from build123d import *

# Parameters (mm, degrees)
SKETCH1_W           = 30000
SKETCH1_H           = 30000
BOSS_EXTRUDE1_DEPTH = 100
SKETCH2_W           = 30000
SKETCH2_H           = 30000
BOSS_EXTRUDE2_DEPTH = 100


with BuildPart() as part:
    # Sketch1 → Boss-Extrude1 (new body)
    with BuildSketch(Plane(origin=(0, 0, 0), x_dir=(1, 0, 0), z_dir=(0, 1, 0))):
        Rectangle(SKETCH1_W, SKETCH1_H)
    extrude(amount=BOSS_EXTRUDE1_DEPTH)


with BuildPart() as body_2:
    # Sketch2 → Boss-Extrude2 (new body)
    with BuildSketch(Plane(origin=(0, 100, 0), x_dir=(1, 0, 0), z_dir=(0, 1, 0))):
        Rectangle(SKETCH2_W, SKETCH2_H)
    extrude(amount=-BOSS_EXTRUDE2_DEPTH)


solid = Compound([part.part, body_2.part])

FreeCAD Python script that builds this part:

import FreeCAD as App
import Part
import Sketcher

doc = App.newDocument("Part")
params = doc.addObject("Spreadsheet::Sheet", "Params")
for row, (alias, value) in enumerate([
    ("sketch1_width", "30000 mm"),
    ("pad1_length", "100 mm"),
    ("sketch2_width", "30000 mm"),
    ("pad2_length", "100 mm"),
], start=1):
    params.set(f"A{row}", alias)
    params.set(f"B{row}", "=" + value)
    params.setAlias(f"B{row}", alias)

body = doc.addObject("PartDesign::Body", "Body")

# Sketch on XZ plane
sketch1 = body.newObject("Sketcher::SketchObject", "Sketch")
sketch1.AttachmentSupport = (doc.getObject("XZ_Plane"), [""])
sketch1.MapMode = "FlatFace"
sketch1.addGeometry([
    Part.LineSegment(App.Vector(-15000, -15000, 0), App.Vector(-15000, 15000, 0)),
    Part.LineSegment(App.Vector(-15000, 15000, 0), App.Vector(15000, 15000, 0)),
    Part.LineSegment(App.Vector(15000, 15000, 0), App.Vector(15000, -15000, 0)),
    Part.LineSegment(App.Vector(15000, -15000, 0), App.Vector(-15000, -15000, 0)),
], False)
sketch1.addConstraint([
    Sketcher.Constraint("Coincident", 0, 2, 1, 1),
    Sketcher.Constraint("Coincident", 1, 2, 2, 1),
    Sketcher.Constraint("Coincident", 2, 2, 3, 1),
    Sketcher.Constraint("Coincident", 3, 2, 0, 1),
    Sketcher.Constraint("Vertical", 0),
    Sketcher.Constraint("Horizontal", 1),
    Sketcher.Constraint("Vertical", 2),
    Sketcher.Constraint("Horizontal", 3),
    Sketcher.Constraint("Symmetric", 0, 2, 2, 2, -1, 1),
    Sketcher.Constraint("Equal", 3, 0),
    Sketcher.Constraint("DistanceX", 1, 1, 1, 2, 30000.0),
])
sketch1.setExpression("Constraints[10]", "Params.sketch1_width")
pad1 = body.newObject("PartDesign::Pad", "Pad")
pad1.Profile = sketch1
pad1.setExpression("Length", "Params.pad1_length")
pad1.Reversed = True
body2 = doc.addObject("PartDesign::Body", "Body001")

# Sketch on XZ plane
sketch2 = body2.newObject("Sketcher::SketchObject", "Sketch001")
sketch2.AttachmentSupport = (doc.getObject("XZ_Plane001"), [""])
sketch2.MapMode = "FlatFace"
sketch2.AttachmentOffset = App.Placement(App.Vector(0, 0, -100), App.Rotation())
sketch2.addGeometry([
    Part.LineSegment(App.Vector(-15000, -15000, 0), App.Vector(-15000, 15000, 0)),
    Part.LineSegment(App.Vector(-15000, 15000, 0), App.Vector(15000, 15000, 0)),
    Part.LineSegment(App.Vector(15000, 15000, 0), App.Vector(15000, -15000, 0)),
    Part.LineSegment(App.Vector(15000, -15000, 0), App.Vector(-15000, -15000, 0)),
], False)
sketch2.addConstraint([
    Sketcher.Constraint("Coincident", 0, 2, 1, 1),
    Sketcher.Constraint("Coincident", 1, 2, 2, 1),
    Sketcher.Constraint("Coincident", 2, 2, 3, 1),
    Sketcher.Constraint("Coincident", 3, 2, 0, 1),
    Sketcher.Constraint("Vertical", 0),
    Sketcher.Constraint("Horizontal", 1),
    Sketcher.Constraint("Vertical", 2),
    Sketcher.Constraint("Horizontal", 3),
    Sketcher.Constraint("Symmetric", 0, 2, 2, 2, -1, 1),
    Sketcher.Constraint("Equal", 3, 0),
    Sketcher.Constraint("DistanceX", 1, 1, 1, 2, 30000.0),
])
sketch2.setExpression("Constraints[10]", "Params.sketch2_width")
pad2 = body2.newObject("PartDesign::Pad", "Pad001")
pad2.Profile = sketch2
pad2.setExpression("Length", "Params.pad2_length")

doc.recompute()
